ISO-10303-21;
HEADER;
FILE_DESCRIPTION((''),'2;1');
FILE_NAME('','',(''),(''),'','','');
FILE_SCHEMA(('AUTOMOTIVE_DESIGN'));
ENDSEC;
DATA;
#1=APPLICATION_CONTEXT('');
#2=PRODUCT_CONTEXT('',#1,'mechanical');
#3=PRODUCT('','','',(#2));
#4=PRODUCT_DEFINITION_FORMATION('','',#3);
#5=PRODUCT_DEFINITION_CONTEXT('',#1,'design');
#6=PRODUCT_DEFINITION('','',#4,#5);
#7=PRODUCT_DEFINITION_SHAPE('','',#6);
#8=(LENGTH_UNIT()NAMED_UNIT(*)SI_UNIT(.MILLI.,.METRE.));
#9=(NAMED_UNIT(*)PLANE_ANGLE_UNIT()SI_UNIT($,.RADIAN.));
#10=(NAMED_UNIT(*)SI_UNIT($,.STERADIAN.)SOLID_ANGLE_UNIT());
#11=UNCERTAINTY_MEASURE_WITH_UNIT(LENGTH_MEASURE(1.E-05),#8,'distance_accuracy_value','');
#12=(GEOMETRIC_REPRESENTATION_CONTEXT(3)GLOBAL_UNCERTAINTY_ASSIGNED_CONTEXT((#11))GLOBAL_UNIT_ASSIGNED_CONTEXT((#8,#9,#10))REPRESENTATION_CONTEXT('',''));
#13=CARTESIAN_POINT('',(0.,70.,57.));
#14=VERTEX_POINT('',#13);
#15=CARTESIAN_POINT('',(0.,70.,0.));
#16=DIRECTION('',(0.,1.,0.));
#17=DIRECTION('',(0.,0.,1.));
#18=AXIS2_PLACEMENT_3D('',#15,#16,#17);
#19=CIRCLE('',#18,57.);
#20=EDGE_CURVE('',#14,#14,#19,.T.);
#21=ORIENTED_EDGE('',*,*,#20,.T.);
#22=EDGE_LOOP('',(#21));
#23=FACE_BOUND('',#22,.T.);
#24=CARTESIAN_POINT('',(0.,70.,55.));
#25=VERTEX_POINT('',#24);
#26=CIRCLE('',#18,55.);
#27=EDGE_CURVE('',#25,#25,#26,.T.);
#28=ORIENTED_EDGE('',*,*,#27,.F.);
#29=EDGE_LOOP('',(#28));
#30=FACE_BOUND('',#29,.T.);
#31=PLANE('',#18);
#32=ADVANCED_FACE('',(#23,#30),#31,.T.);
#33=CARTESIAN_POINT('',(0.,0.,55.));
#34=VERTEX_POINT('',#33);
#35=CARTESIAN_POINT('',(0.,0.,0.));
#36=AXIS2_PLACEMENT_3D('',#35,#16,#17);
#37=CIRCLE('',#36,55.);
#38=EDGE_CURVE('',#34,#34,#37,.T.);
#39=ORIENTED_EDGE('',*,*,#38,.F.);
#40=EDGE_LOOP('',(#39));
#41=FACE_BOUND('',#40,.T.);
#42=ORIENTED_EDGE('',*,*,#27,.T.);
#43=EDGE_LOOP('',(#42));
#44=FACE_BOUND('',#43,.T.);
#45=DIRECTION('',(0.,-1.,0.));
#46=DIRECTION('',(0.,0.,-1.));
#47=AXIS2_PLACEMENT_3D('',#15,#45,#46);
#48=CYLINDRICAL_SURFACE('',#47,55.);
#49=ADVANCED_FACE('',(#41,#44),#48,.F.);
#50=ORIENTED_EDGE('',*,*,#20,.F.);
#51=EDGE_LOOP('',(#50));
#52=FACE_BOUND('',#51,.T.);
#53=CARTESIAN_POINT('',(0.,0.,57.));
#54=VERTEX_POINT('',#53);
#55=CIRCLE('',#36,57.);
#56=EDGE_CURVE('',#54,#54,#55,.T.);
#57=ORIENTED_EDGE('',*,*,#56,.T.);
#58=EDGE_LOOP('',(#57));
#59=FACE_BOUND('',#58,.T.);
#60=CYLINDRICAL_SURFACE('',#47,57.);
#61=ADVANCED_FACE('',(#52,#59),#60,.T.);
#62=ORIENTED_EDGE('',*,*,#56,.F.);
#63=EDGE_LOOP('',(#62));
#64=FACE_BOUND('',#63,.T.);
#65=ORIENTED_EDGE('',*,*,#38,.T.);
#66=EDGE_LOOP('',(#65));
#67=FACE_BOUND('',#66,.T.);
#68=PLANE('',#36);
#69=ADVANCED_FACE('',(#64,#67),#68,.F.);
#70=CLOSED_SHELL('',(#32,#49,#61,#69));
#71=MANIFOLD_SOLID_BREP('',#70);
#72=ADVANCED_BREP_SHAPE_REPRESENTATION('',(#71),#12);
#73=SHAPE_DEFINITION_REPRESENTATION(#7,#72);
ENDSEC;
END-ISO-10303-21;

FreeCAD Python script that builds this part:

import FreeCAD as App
import Part
import Sketcher
Q = App.Units.Quantity

doc = App.newDocument("Part")
body = doc.addObject("PartDesign::Body", "Body")

# Sketch on XZ plane
sketch1 = body.newObject("Sketcher::SketchObject", "Sketch")
sketch1.AttachmentSupport = (doc.getObject("XZ_Plane"), [""])
sketch1.MapMode = "FlatFace"
sketch1.addGeometry([
    Part.Circle(App.Vector(0, 0, 0), App.Vector(0, 0, 1), 57),
    Part.Circle(App.Vector(0, 0, 0), App.Vector(0, 0, 1), 55),
], False)
sketch1.addConstraint([
    Sketcher.Constraint("Coincident", 0, 3, -1, 1),
    Sketcher.Constraint("Coincident", 1, 3, -1, 1),
    Sketcher.Constraint("Diameter", 0, Q("114 mm")),
    Sketcher.Constraint("Diameter", 1, Q("110 mm")),
])
pad1 = body.newObject("PartDesign::Pad", "Pad")
pad1.Profile = sketch1
pad1.Length = 70
pad1.Reversed = True

doc.recompute()
